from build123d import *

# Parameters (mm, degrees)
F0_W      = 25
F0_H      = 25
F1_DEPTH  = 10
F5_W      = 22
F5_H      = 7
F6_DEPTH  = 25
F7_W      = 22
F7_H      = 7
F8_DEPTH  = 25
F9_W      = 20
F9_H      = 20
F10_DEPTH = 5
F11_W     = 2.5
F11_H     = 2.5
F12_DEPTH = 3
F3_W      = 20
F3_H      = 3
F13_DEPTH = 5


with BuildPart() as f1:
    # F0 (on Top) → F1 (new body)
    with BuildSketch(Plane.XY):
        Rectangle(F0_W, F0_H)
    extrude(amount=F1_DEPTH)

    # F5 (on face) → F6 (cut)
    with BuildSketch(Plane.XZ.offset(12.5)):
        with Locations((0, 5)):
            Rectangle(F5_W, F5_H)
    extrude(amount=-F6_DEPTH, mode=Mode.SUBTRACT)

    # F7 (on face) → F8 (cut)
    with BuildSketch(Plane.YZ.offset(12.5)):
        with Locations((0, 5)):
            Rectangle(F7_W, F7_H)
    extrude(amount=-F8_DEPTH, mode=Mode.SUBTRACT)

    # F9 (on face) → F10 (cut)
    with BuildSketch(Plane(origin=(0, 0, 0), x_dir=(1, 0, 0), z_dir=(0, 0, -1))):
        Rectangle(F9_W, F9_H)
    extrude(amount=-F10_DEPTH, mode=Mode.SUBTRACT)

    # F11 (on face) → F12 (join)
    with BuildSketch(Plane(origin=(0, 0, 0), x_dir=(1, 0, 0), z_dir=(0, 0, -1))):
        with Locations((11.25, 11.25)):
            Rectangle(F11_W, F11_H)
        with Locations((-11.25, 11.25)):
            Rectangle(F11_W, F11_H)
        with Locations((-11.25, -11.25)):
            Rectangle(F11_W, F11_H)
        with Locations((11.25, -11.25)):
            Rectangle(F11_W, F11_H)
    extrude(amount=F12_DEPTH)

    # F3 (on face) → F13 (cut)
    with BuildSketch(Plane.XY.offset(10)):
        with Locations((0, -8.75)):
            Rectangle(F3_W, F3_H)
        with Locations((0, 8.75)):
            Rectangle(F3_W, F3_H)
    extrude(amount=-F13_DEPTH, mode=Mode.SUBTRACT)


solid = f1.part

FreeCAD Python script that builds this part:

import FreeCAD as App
import Part
import Sketcher
Q = App.Units.Quantity


def add_polygon(sketch, points):
    """Adds a closed chain of lines whose ends are joined by coincident constraints."""
    first, n = sketch.GeometryCount, len(points)
    for a, b in zip(points, points[1:] + points[:1]):
        sketch.addGeometry(Part.LineSegment(App.Vector(*a, 0), App.Vector(*b, 0)), False)
    for i in range(n):
        sketch.addConstraint(Sketcher.Constraint("Coincident", first + i, 2, first + (i + 1) % n, 1))

doc = App.newDocument("Part")
body = doc.addObject("PartDesign::Body", "Body")

sketch1 = body.newObject("Sketcher::SketchObject", "Sketch")
sketch1.AttachmentSupport = (doc.getObject("XY_Plane"), [""])
sketch1.MapMode = "FlatFace"
add_polygon(sketch1, [(-12.5, 12.5), (-12.5, -12.5), (12.5, -12.5), (12.5, 12.5)])
sketch1.addConstraint(Sketcher.Constraint("Vertical", 0))
sketch1.addConstraint(Sketcher.Constraint("Horizontal", 1))
sketch1.addConstraint(Sketcher.Constraint("Vertical", 2))
sketch1.addConstraint(Sketcher.Constraint("Horizontal", 3))
sketch1.addConstraint(Sketcher.Constraint("Symmetric", 0, 2, 2, 2, -1, 1))
sketch1.addConstraint(Sketcher.Constraint("Equal", 3, 0))
sketch1.addConstraint(Sketcher.Constraint("DistanceX", 1, 1, 1, 2, Q("25 mm")))
pad1 = body.newObject("PartDesign::Pad", "Pad")
pad1.Profile = sketch1
pad1.Length = 10

sketch2 = body.newObject("Sketcher::SketchObject", "Sketch001")
sketch2.AttachmentSupport = (doc.getObject("XZ_Plane"), [""])
sketch2.MapMode = "FlatFace"
sketch2.AttachmentOffset = App.Placement(App.Vector(0, 0, 12.5), App.Rotation())
add_polygon(sketch2, [(-11, 8.5), (-11, 1.5), (11, 1.5), (11, 8.5)])
sketch2.addConstraint(Sketcher.Constraint("Vertical", 0))
sketch2.addConstraint(Sketcher.Constraint("Horizontal", 1))
sketch2.addConstraint(Sketcher.Constraint("Vertical", 2))
sketch2.addConstraint(Sketcher.Constraint("Horizontal", 3))
sketch2.addConstraint(Sketcher.Constraint("DistanceX", 1, 1, 1, 2, Q("22 mm")))
sketch2.addConstraint(Sketcher.Constraint("DistanceY", 0, 2, 0, 1, Q("7 mm")))
sketch2.addConstraint(Sketcher.Constraint("DistanceX", 0, 2, -1, 1, Q("11 mm")))
sketch2.addConstraint(Sketcher.Constraint("DistanceY", -1, 1, 0, 2, Q("1.5 mm")))
pocket1 = body.newObject("PartDesign::Pocket", "Pocket")
pocket1.Profile = sketch2
pocket1.Length = 25

sketch3 = body.newObject("Sketcher::SketchObject", "Sketch002")
sketch3.AttachmentSupport = (doc.getObject("YZ_Plane"), [""])
sketch3.MapMode = "FlatFace"
sketch3.AttachmentOffset = App.Placement(App.Vector(0, 0, 12.5), App.Rotation())
add_polygon(sketch3, [(-11, 8.5), (-11, 1.5), (11, 1.5), (11, 8.5)])
sketch3.addConstraint(Sketcher.Constraint("Vertical", 0))
sketch3.addConstraint(Sketcher.Constraint("Horizontal", 1))
sketch3.addConstraint(Sketcher.Constraint("Vertical", 2))
sketch3.addConstraint(Sketcher.Constraint("Horizontal", 3))
sketch3.addConstraint(Sketcher.Constraint("DistanceX", 1, 1, 1, 2, Q("22 mm")))
sketch3.addConstraint(Sketcher.Constraint("DistanceY", 0, 2, 0, 1, Q("7 mm")))
sketch3.addConstraint(Sketcher.Constraint("DistanceX", 0, 2, -1, 1, Q("11 mm")))
sketch3.addConstraint(Sketcher.Constraint("DistanceY", -1, 1, 0, 2, Q("1.5 mm")))
pocket2 = body.newObject("PartDesign::Pocket", "Pocket001")
pocket2.Profile = sketch3
pocket2.Length = 25

sketch4 = body.newObject("Sketcher::SketchObject", "Sketch003")
sketch4.AttachmentSupport = (doc.getObject("XY_Plane"), [""])
sketch4.MapMode = "FlatFace"
add_polygon(sketch4, [(-10, -10), (-10, 10), (10, 10), (10, -10)])
sketch4.addConstraint(Sketcher.Constraint("Vertical", 0))
sketch4.addConstraint(Sketcher.Constraint("Horizontal", 1))
sketch4.addConstraint(Sketcher.Constraint("Vertical", 2))
sketch4.addConstraint(Sketcher.Constraint("Horizontal", 3))
sketch4.addConstraint(Sketcher.Constraint("Symmetric", 0, 2, 2, 2, -1, 1))
sketch4.addConstraint(Sketcher.Constraint("Equal", 3, 0))
sketch4.addConstraint(Sketcher.Constraint("DistanceX", 1, 1, 1, 2, Q("20 mm")))
pocket3 = body.newObject("PartDesign::Pocket", "Pocket002")
pocket3.Profile = sketch4
pocket3.Length = 5
pocket3.Reversed = True

sketch5 = body.newObject("Sketcher::SketchObject", "Sketch004")
sketch5.AttachmentSupport = (doc.getObject("XY_Plane"), [""])
sketch5.MapMode = "FlatFace"
add_polygon(sketch5, [(10, -12.5), (10, -10), (12.5, -10), (12.5, -12.5)])
add_polygon(sketch5, [(-12.5, -12.5), (-12.5, -10), (-10, -10), (-10, -12.5)])
add_polygon(sketch5, [(-12.5, 10), (-12.5, 12.5), (-10, 12.5), (-10, 10)])
add_polygon(sketch5, [(10, 10), (10, 12.5), (12.5, 12.5), (12.5, 10)])
sketch5.addConstraint(Sketcher.Constraint("Vertical", 0))
sketch5.addConstraint(Sketcher.Constraint("Horizontal", 1))
sketch5.addConstraint(Sketcher.Constraint("Vertical", 2))
sketch5.addConstraint(Sketcher.Constraint("Horizontal", 3))
sketch5.addConstraint(Sketcher.Constraint("Vertical", 4))
sketch5.addConstraint(Sketcher.Constraint("Horizontal", 5))
sketch5.addConstraint(Sketcher.Constraint("Vertical", 6))
sketch5.addConstraint(Sketcher.Constraint("Horizontal", 7))
sketch5.addConstraint(Sketcher.Constraint("Vertical", 8))
sketch5.addConstraint(Sketcher.Constraint("Horizontal", 9))
sketch5.addConstraint(Sketcher.Constraint("Vertical", 10))
sketch5.addConstraint(Sketcher.Constraint("Horizontal", 11))
sketch5.addConstraint(Sketcher.Constraint("Vertical", 12))
sketch5.addConstraint(Sketcher.Constraint("Horizontal", 13))
sketch5.addConstraint(Sketcher.Constraint("Vertical", 14))
sketch5.addConstraint(Sketcher.Constraint("Horizontal", 15))
sketch5.addConstraint(Sketcher.Constraint("Symmetric", 2, 2, 8, 2, -1, 1))
sketch5.addConstraint(Sketcher.Constraint("Symmetric", 0, 2, 10, 2, -1, 1))
sketch5.addConstraint(Sketcher.Constraint("Symmetric", 6, 2, 12, 2, -1, 1))
sketch5.addConstraint(Sketcher.Constraint("Symmetric", 4, 2, 14, 2, -1, 1))
sketch5.addConstraint(Sketcher.Constraint("Symmetric", 1, 2, 4, 2, -2))
sketch5.addConstraint(Sketcher.Constraint("Symmetric", 3, 2, 6, 2, -2))
sketch5.addConstraint(Sketcher.Constraint("Equal", 15, 0))
sketch5.addConstraint(Sketcher.Constraint("DistanceX", 1, 1, 1, 2, Q("2.5 mm")))
sketch5.addConstraint(Sketcher.Constraint("DistanceX", -1, 1, 0, 2, Q("10 mm")))
sketch5.addConstraint(Sketcher.Constraint("DistanceY", 0, 2, -1, 1, Q("10 mm")))
pad2 = body.newObject("PartDesign::Pad", "Pad001")
pad2.Profile = sketch5
pad2.Length = 3
pad2.Reversed = True

sketch6 = body.newObject("Sketcher::SketchObject", "Sketch005")
sketch6.AttachmentSupport = (doc.getObject("XY_Plane"), [""])
sketch6.MapMode = "FlatFace"
sketch6.AttachmentOffset = App.Placement(App.Vector(0, 0, 10), App.Rotation())
add_polygon(sketch6, [(-10, -7.25), (-10, -10.25), (10, -10.25), (10, -7.25)])
add_polygon(sketch6, [(-10, 10.25), (-10, 7.25), (10, 7.25), (10, 10.25)])
sketch6.addConstraint(Sketcher.Constraint("Vertical", 0))
sketch6.addConstraint(Sketcher.Constraint("Horizontal", 1))
sketch6.addConstraint(Sketcher.Constraint("Vertical", 2))
sketch6.addConstraint(Sketcher.Constraint("Horizontal", 3))
sketch6.addConstraint(Sketcher.Constraint("Vertical", 4))
sketch6.addConstraint(Sketcher.Constraint("Horizontal", 5))
sketch6.addConstraint(Sketcher.Constraint("Vertical", 6))
sketch6.addConstraint(Sketcher.Constraint("Horizontal", 7))
sketch6.addConstraint(Sketcher.Constraint("Symmetric", 2, 2, 4, 2, -1, 1))
sketch6.addConstraint(Sketcher.Constraint("Symmetric", 0, 2, 6, 2, -1, 1))
sketch6.addConstraint(Sketcher.Constraint("Vertical", 3, 2, 4, 2))
sketch6.addConstraint(Sketcher.Constraint("DistanceX", 1, 1, 1, 2, Q("20 mm")))
sketch6.addConstraint(Sketcher.Constraint("DistanceY", 0, 2, 0, 1, Q("3 mm")))
sketch6.addConstraint(Sketcher.Constraint("DistanceY", 3, 2, 4, 2, Q("14.5 mm")))
pocket4 = body.newObject("PartDesign::Pocket", "Pocket003")
pocket4.Profile = sketch6
pocket4.Length = 5

doc.recompute()
